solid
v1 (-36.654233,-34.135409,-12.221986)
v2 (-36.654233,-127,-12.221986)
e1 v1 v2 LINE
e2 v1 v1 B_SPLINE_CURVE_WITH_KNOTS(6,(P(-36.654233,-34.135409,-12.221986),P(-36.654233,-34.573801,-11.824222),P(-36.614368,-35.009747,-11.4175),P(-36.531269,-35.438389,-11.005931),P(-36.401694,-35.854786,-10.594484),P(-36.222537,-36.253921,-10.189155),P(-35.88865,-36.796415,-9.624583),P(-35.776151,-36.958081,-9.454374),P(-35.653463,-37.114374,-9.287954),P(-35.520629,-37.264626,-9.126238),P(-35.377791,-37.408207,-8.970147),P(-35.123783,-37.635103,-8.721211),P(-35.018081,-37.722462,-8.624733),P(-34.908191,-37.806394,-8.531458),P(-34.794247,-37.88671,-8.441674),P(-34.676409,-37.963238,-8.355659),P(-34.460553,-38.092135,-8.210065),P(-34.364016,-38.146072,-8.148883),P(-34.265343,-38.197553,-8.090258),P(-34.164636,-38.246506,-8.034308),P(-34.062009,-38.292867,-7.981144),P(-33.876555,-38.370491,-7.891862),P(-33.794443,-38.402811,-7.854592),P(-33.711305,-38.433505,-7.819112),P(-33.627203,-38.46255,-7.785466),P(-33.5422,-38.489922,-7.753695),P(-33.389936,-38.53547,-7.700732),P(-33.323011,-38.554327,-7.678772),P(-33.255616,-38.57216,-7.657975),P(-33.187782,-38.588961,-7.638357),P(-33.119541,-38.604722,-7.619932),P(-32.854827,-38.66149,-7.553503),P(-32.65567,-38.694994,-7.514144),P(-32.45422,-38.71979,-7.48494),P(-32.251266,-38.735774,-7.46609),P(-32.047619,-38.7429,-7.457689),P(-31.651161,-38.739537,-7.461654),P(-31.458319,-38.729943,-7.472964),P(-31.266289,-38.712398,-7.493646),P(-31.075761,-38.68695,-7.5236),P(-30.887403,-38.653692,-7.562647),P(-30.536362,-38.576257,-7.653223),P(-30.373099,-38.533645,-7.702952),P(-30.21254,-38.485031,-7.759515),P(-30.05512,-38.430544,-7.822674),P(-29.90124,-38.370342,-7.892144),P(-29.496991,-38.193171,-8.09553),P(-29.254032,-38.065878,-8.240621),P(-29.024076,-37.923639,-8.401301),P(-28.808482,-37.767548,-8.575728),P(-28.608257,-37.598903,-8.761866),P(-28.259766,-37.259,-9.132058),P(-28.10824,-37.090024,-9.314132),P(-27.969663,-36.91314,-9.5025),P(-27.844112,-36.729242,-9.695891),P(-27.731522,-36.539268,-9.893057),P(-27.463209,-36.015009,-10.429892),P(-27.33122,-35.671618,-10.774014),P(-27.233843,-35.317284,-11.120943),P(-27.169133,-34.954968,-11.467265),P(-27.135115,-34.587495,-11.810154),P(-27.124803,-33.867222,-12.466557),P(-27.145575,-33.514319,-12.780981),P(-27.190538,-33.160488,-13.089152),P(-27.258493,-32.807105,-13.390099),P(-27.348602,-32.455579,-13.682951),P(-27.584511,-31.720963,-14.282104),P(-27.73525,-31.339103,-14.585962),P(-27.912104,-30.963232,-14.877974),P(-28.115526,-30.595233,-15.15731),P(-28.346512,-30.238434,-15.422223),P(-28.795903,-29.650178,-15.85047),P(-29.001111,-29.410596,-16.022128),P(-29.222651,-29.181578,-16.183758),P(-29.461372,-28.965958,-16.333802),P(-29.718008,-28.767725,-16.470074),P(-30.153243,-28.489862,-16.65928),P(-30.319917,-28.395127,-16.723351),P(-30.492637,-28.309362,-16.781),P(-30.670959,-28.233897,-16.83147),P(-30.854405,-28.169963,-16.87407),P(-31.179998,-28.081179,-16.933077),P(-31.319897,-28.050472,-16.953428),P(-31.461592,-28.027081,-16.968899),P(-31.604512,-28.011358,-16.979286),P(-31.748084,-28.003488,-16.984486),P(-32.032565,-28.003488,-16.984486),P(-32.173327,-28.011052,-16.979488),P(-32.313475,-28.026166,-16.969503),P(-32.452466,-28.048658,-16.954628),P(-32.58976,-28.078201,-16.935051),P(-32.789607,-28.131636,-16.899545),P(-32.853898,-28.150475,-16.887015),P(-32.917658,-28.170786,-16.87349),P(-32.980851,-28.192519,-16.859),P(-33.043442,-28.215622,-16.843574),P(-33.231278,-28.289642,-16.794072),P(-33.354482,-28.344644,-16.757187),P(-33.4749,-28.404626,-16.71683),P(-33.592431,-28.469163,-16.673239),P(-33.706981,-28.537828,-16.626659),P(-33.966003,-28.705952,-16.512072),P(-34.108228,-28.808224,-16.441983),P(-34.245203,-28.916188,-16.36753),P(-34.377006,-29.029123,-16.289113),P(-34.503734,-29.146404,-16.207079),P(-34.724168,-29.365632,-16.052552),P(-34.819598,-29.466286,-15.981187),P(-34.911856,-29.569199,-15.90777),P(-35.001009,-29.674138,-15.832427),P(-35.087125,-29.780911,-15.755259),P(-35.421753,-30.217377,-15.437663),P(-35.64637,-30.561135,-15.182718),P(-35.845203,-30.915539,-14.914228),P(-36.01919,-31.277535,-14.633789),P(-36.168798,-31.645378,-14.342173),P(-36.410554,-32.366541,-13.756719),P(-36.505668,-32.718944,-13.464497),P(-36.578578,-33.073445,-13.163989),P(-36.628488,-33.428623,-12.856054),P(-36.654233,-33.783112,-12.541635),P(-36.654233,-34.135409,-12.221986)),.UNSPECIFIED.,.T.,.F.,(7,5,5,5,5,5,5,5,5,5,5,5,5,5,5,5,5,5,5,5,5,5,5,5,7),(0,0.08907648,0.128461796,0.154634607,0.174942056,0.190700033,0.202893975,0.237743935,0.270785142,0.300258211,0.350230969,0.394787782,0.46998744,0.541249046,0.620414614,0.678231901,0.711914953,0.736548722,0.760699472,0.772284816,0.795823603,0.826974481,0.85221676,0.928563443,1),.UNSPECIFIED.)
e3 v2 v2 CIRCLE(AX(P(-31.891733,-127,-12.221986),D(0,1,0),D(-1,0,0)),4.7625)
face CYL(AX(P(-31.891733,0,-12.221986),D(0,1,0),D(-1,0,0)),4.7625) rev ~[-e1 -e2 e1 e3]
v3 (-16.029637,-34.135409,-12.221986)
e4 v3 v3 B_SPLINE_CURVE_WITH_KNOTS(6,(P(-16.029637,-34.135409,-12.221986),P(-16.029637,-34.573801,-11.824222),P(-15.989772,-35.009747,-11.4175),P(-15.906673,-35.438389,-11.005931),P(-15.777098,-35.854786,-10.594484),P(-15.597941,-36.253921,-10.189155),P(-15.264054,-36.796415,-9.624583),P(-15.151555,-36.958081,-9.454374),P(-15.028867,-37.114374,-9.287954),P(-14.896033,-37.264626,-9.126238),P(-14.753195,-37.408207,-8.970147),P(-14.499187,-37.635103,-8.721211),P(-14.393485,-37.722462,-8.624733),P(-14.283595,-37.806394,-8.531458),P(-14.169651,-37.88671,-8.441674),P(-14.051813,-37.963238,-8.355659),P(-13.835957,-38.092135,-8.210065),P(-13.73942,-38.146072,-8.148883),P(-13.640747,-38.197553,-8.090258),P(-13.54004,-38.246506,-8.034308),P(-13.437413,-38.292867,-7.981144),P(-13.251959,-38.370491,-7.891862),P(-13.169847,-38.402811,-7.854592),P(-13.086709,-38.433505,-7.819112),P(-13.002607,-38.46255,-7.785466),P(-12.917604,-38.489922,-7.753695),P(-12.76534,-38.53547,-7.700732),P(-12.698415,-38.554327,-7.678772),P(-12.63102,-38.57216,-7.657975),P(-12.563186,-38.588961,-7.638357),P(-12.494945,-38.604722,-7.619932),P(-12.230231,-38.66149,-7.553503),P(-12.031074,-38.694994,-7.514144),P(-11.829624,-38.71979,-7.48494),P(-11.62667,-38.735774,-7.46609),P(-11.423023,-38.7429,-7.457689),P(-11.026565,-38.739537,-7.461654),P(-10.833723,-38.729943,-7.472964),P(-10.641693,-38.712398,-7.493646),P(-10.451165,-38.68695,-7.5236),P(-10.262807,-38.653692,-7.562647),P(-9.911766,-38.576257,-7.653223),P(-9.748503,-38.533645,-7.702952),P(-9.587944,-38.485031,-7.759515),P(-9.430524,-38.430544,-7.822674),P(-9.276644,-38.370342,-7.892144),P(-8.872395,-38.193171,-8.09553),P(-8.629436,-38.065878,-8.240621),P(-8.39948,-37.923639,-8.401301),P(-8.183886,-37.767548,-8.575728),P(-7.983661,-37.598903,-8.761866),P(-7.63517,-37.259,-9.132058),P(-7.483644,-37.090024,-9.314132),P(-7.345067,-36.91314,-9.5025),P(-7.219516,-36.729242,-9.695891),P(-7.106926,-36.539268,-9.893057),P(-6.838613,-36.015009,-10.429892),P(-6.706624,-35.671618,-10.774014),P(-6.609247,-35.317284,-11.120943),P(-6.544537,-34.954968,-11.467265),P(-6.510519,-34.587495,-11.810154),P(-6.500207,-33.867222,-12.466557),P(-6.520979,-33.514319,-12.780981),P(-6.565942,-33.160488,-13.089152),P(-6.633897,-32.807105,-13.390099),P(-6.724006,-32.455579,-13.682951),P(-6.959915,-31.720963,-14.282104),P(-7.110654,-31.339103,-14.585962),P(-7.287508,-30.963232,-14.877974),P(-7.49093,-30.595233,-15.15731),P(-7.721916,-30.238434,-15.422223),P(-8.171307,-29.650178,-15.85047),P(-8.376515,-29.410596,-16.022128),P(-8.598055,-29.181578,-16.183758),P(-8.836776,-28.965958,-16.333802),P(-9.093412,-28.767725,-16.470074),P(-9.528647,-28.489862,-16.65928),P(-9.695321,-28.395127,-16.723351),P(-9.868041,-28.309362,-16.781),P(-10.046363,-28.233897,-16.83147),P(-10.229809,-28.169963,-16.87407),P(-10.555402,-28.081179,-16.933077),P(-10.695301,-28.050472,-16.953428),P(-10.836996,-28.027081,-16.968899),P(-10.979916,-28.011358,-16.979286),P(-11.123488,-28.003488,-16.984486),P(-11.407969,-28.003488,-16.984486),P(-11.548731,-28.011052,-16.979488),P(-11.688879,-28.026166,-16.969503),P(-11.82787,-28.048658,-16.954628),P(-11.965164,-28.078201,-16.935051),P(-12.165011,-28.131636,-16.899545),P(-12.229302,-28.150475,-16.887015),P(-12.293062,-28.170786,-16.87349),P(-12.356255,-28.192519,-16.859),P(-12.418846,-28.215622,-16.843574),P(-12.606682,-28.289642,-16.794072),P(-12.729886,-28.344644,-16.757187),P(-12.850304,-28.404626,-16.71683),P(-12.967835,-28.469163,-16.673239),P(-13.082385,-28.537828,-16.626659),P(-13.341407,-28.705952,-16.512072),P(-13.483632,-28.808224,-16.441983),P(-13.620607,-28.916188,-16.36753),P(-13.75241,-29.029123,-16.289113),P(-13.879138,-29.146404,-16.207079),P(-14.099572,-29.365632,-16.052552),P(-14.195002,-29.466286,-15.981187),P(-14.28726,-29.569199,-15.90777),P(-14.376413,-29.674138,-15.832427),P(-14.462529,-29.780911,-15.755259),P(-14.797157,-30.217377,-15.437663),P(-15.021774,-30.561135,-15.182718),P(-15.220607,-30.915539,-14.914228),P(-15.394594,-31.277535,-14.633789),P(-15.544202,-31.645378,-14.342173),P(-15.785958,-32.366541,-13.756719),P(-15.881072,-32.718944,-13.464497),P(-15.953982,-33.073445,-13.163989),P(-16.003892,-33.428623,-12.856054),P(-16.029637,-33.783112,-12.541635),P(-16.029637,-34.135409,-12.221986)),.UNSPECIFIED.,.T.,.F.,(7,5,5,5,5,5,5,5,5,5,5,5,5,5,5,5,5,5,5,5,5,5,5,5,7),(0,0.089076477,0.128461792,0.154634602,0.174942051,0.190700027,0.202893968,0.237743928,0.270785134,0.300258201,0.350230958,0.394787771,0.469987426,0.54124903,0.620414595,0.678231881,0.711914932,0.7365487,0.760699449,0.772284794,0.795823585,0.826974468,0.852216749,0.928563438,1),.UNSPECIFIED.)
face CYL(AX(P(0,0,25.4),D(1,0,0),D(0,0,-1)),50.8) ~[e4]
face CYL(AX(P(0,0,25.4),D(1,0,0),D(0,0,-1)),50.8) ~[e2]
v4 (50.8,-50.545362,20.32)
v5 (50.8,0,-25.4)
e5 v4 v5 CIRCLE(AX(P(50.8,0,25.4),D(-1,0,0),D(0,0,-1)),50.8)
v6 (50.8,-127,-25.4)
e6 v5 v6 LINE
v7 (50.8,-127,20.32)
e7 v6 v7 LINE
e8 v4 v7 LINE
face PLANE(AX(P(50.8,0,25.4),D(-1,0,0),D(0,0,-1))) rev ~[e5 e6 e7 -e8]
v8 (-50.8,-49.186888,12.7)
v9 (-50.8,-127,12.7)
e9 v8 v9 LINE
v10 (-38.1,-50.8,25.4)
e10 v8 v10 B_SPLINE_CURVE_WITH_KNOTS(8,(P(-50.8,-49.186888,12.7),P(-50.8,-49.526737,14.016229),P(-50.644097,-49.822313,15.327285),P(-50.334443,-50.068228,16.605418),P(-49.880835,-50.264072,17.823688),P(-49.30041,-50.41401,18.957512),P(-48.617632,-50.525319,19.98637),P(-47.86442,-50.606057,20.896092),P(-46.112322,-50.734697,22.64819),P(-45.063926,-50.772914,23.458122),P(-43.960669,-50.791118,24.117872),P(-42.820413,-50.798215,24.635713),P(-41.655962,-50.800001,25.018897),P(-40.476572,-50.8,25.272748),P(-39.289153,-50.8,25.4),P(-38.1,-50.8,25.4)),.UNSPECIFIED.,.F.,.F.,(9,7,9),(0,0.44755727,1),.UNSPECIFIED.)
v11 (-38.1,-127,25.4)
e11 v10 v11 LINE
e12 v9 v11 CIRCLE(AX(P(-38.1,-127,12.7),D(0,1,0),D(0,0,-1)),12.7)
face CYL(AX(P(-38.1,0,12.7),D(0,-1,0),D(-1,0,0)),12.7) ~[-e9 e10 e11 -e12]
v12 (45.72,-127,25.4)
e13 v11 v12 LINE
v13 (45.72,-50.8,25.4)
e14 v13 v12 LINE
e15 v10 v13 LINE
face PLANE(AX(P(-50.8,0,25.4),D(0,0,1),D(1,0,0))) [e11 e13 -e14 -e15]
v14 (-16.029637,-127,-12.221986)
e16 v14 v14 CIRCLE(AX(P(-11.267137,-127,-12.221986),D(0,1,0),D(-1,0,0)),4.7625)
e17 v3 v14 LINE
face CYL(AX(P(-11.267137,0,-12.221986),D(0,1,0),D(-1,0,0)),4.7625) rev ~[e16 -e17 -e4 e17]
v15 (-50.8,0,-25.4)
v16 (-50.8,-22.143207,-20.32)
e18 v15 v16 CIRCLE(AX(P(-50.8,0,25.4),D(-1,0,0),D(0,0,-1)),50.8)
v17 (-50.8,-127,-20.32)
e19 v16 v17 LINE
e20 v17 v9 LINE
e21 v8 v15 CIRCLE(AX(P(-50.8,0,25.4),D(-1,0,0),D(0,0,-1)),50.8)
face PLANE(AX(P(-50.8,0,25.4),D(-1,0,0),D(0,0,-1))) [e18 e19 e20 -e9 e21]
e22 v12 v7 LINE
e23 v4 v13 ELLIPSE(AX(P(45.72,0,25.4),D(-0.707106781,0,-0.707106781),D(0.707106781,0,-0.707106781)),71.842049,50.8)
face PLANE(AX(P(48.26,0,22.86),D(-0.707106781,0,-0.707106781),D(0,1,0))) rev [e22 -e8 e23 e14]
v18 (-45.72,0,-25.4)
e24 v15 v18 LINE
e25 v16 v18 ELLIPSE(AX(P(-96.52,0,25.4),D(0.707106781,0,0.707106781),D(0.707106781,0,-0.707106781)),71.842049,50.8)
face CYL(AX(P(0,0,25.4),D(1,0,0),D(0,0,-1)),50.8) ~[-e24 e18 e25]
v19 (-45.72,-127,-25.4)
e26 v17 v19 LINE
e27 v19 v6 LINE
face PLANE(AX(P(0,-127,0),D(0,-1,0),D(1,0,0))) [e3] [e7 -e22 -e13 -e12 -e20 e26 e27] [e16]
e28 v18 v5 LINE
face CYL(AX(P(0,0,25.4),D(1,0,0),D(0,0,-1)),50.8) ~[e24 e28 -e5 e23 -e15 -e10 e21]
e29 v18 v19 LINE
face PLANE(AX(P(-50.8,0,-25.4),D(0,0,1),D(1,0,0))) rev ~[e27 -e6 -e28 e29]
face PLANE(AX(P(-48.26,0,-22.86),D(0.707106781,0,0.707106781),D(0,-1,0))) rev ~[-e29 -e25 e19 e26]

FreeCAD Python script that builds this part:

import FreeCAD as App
import Part
import Sketcher

V = App.Vector
Q = App.Units.Quantity


def edges_at(feature, points):
    """Names of the edges that pass closest to the given points."""
    edges = feature.Shape.Edges
    near = lambda p: min(range(len(edges)), key=lambda i: edges[i].distToShape(Part.Vertex(*p))[0])
    return sorted({f"Edge{near(p) + 1}" for p in points})

doc = App.newDocument("Part")
body = doc.addObject("PartDesign::Body", "Body")

sketch1 = body.newObject("Sketcher::SketchObject", "Sketch")
sketch1.AttachmentSupport = (doc.getObject("XZ_Plane"), [""])
sketch1.MapMode = "FlatFace"
sketch1.addGeometry([
    Part.LineSegment(V(-51, 25, 0), V(-51, -25, 0)),
    Part.LineSegment(V(-51, -25, 0), V(51, -25, 0)),
    Part.LineSegment(V(51, -25, 0), V(51, 25, 0)),
    Part.LineSegment(V(51, 25, 0), V(-51, 25, 0)),
], False)
sketch1.addConstraint([
    Sketcher.Constraint("Coincident", 0, 2, 1, 1),
    Sketcher.Constraint("Coincident", 1, 2, 2, 1),
    Sketcher.Constraint("Coincident", 2, 2, 3, 1),
    Sketcher.Constraint("Coincident", 3, 2, 0, 1),
    Sketcher.Constraint("Vertical", 0),
    Sketcher.Constraint("Horizontal", 1),
    Sketcher.Constraint("Vertical", 2),
    Sketcher.Constraint("Horizontal", 3),
    Sketcher.Constraint("Symmetric", 0, 2, 2, 2, -1, 1),
    Sketcher.Constraint("DistanceX", 1, 1, 1, 2, Q("4 in")),
    Sketcher.Constraint("DistanceY", 0, 2, 0, 1, Q("2 in")),
])
pad1 = body.newObject("PartDesign::Pad", "Pad")
pad1.Profile = sketch1
pad1.Length = Q("5 in")

sketch2 = body.newObject("Sketcher::SketchObject", "Sketch001")
sketch2.AttachmentSupport = (doc.getObject("XZ_Plane"), [""])
sketch2.MapMode = "FlatFace"
sketch2.addGeometry([
    Part.Circle(V(-31.9, -12.2, 0), V(0, 0, 1), 4.8),
    Part.Circle(V(-11.3, -12.2, 0), V(0, 0, 1), 4.8),
], False)
sketch2.addConstraint([
    Sketcher.Constraint("Equal", 0, 1),
    Sketcher.Constraint("Horizontal", 0, 3, 1, 3),
    Sketcher.Constraint("Diameter", 0, Q("0.375 in")),
    Sketcher.Constraint("DistanceX", 0, 3, -1, 1, Q("31.891733 mm")),
    Sketcher.Constraint("DistanceY", 0, 3, -1, 1, Q("12.221986 mm")),
    Sketcher.Constraint("DistanceX", 1, 3, -1, 1, Q("11.267137 mm")),
])
pocket1 = body.newObject("PartDesign::Pocket", "Pocket")
pocket1.Profile = sketch2
pocket1.Length = Q("6.23 in")
pocket1.Reversed = True
doc.recompute()

fillet = body.newObject("PartDesign::Fillet", "Fillet")
fillet.Base = (pocket1, edges_at(pocket1, [(-50.8, -63.5, 25.4)]))
fillet.Radius = Q("0.5 in")
doc.recompute()

chamfer = body.newObject("PartDesign::Chamfer", "Chamfer")
chamfer.Base = (fillet, edges_at(fillet, [(50.8, -63.5, 25.4), (-50.8, -63.5, -25.4)]))
chamfer.Size = Q("0.2 in")

sketch3 = body.newObject("Sketcher::SketchObject", "Sketch002")
sketch3.AttachmentSupport = (doc.getObject("XZ_Plane"), [""])
sketch3.MapMode = "FlatFace"
sketch3.addGeometry([
    Part.LineSegment(V(-51, 25, 0), V(-51, -25, 0)),
    Part.LineSegment(V(-51, -25, 0), V(51, -25, 0)),
    Part.LineSegment(V(51, -25, 0), V(51, 25, 0)),
    Part.LineSegment(V(51, 25, 0), V(-51, 25, 0)),
], False)
sketch3.addGeometry(Part.LineSegment(V(51, 25, 0), V(-51, 25, 0)), True)
sketch3.addConstraint([
    Sketcher.Constraint("Coincident", 0, 2, 1, 1),
    Sketcher.Constraint("Coincident", 1, 2, 2, 1),
    Sketcher.Constraint("Coincident", 2, 2, 3, 1),
    Sketcher.Constraint("Coincident", 3, 2, 0, 1),
    Sketcher.Constraint("Vertical", 0),
    Sketcher.Constraint("Horizontal", 1),
    Sketcher.Constraint("Vertical", 2),
    Sketcher.Constraint("Horizontal", 3),
    Sketcher.Constraint("Horizontal", 4),
    Sketcher.Constraint("Coincident", 4, 1, 2, 2),
    Sketcher.Constraint("Symmetric", 0, 2, 2, 2, -1, 1),
    Sketcher.Constraint("Vertical", 0, 2, 4, 2),
    Sketcher.Constraint("DistanceX", 1, 1, 1, 2, Q("4 in")),
    Sketcher.Constraint("DistanceY", 0, 2, 0, 1, Q("2 in")),
])
revolution = body.newObject("PartDesign::Revolution", "Revolution")
revolution.Profile = sketch3
revolution.ReferenceAxis = (sketch3, ["Axis0"])
revolution.Angle = 360

doc.recompute()
